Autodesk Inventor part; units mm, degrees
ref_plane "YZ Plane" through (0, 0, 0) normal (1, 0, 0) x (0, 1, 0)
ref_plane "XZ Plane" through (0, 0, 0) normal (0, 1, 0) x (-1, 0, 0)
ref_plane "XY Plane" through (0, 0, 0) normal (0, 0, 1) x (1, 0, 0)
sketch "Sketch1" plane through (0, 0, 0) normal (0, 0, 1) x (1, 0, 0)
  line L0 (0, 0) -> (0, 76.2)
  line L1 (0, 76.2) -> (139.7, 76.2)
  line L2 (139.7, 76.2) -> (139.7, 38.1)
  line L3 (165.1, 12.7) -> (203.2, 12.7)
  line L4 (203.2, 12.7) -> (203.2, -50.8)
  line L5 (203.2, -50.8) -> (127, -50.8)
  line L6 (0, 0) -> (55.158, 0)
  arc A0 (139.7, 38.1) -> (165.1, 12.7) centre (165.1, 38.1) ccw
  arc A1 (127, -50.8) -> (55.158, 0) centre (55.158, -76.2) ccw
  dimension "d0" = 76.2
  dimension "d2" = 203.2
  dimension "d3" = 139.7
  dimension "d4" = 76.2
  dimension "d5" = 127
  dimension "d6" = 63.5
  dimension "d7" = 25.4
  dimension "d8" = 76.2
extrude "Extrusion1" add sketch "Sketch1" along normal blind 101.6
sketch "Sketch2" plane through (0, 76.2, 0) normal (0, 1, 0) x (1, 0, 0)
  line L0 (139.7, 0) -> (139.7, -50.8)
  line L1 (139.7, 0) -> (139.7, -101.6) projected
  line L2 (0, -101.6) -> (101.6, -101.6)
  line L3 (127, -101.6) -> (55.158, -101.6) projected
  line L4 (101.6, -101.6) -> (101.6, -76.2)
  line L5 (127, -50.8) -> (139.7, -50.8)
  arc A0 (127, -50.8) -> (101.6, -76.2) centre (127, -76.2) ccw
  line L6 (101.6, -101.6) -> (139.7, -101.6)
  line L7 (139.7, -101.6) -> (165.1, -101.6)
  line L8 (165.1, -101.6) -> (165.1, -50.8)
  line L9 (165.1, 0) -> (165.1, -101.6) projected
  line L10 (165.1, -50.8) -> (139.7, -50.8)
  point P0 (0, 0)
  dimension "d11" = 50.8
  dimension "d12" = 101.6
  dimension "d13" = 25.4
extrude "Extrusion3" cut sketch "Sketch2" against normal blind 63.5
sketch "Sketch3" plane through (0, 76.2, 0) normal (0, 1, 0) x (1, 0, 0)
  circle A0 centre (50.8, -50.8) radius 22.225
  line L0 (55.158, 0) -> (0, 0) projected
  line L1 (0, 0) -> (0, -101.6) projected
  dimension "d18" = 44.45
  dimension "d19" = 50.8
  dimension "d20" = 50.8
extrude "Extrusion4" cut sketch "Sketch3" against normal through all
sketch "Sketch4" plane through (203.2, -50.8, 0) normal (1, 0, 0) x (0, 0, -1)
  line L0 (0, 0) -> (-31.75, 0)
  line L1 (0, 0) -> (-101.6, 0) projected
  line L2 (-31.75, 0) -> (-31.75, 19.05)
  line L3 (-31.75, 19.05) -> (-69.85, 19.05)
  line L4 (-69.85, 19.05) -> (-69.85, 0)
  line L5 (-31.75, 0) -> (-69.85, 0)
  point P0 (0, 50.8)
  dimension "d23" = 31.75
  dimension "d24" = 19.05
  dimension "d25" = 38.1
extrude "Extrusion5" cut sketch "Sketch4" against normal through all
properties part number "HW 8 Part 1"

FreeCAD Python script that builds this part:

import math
import FreeCAD as App
import Part
import Sketcher
Q = App.Units.Quantity


def add_polygon(sketch, points):
    """Adds a closed chain of lines whose ends are joined by coincident constraints."""
    first, n = sketch.GeometryCount, len(points)
    for a, b in zip(points, points[1:] + points[:1]):
        sketch.addGeometry(Part.LineSegment(App.Vector(*a, 0), App.Vector(*b, 0)), False)
    for i in range(n):
        sketch.addConstraint(Sketcher.Constraint("Coincident", first + i, 2, first + (i + 1) % n, 1))

doc = App.newDocument("Part")
body = doc.addObject("PartDesign::Body", "Body")

# Sketch on XY plane
sketch1 = doc.addObject("Sketcher::SketchObject", "Sketch")
body.addObject(sketch1)
sketch1.AttachmentSupport = (doc.XY_Plane, [""])
sketch1.MapMode = "FlatFace"
sketch1.addGeometry(Part.LineSegment(App.Vector(0, 76, 0), App.Vector(0, 0, 0)), False)
sketch1.addGeometry(Part.LineSegment(App.Vector(0, 0, 0), App.Vector(55, 0, 0)), False)
sketch1.addGeometry(Part.ArcOfCircle(Part.Circle(App.Vector(55, -76, 0), App.Vector(0, 0, 1), 76), math.radians(19), math.radians(90)), False)
sketch1.addGeometry(Part.LineSegment(App.Vector(127, -51, 0), App.Vector(203, -51, 0)), False)
sketch1.addGeometry(Part.LineSegment(App.Vector(203, -51, 0), App.Vector(203, 13, 0)), False)
sketch1.addGeometry(Part.LineSegment(App.Vector(203, 13, 0), App.Vector(165, 13, 0)), False)
sketch1.addGeometry(Part.ArcOfCircle(Part.Circle(App.Vector(165, 38, 0), App.Vector(0, 0, 1), 25), math.radians(180), math.radians(270)), False)
sketch1.addGeometry(Part.LineSegment(App.Vector(140, 38, 0), App.Vector(140, 76, 0)), False)
sketch1.addGeometry(Part.LineSegment(App.Vector(140, 76, 0), App.Vector(0, 76, 0)), False)
sketch1.addConstraint(Sketcher.Constraint("Coincident", 0, 2, 1, 1))
sketch1.addConstraint(Sketcher.Constraint("Tangent", 1, 2, 2, 2))
sketch1.addConstraint(Sketcher.Constraint("Coincident", 2, 1, 3, 1))
sketch1.addConstraint(Sketcher.Constraint("Coincident", 3, 2, 4, 1))
sketch1.addConstraint(Sketcher.Constraint("Coincident", 4, 2, 5, 1))
sketch1.addConstraint(Sketcher.Constraint("Tangent", 5, 2, 6, 2))
sketch1.addConstraint(Sketcher.Constraint("Tangent", 6, 1, 7, 1))
sketch1.addConstraint(Sketcher.Constraint("Coincident", 7, 2, 8, 1))
sketch1.addConstraint(Sketcher.Constraint("Coincident", 8, 2, 0, 1))
sketch1.addConstraint(Sketcher.Constraint("Vertical", 0))
sketch1.addConstraint(Sketcher.Constraint("Horizontal", 1))
sketch1.addConstraint(Sketcher.Constraint("Horizontal", 3))
sketch1.addConstraint(Sketcher.Constraint("Vertical", 4))
sketch1.addConstraint(Sketcher.Constraint("Horizontal", 5))
sketch1.addConstraint(Sketcher.Constraint("Vertical", 7))
sketch1.addConstraint(Sketcher.Constraint("Horizontal", 8))
sketch1.addConstraint(Sketcher.Constraint("Coincident", 0, 2, -1, 1))
sketch1.addConstraint(Sketcher.Constraint("Equal", 3, 0))
sketch1.addConstraint(Sketcher.Constraint("Equal", 5, 7))
sketch1.addConstraint(Sketcher.Constraint("Radius", 2, Q("3 in")))
sketch1.addConstraint(Sketcher.Constraint("Radius", 6, Q("1 in")))
sketch1.addConstraint(Sketcher.Constraint("DistanceX", 3, 1, 3, 2, Q("3 in")))
sketch1.addConstraint(Sketcher.Constraint("DistanceX", 8, 2, 8, 1, Q("5.5 in")))
sketch1.addConstraint(Sketcher.Constraint("DistanceY", 4, 1, 4, 2, Q("2.5 in")))
sketch1.addConstraint(Sketcher.Constraint("DistanceX", -1, 1, 2, 1, Q("5 in")))
pad1 = doc.addObject("PartDesign::Pad", "Pad")
body.addObject(pad1)
pad1.Profile = sketch1
pad1.Length = Q("4 in")

# Sketch on XZ plane
sketch2 = doc.addObject("Sketcher::SketchObject", "Sketch001")
body.addObject(sketch2)
sketch2.AttachmentSupport = (doc.XZ_Plane, [""])
sketch2.MapMode = "FlatFace"
sketch2.AttachmentOffset = App.Placement(App.Vector(0, 0, -3 * 25.4), App.Rotation())
sketch2.addGeometry(Part.LineSegment(App.Vector(165, 51, 0), App.Vector(127, 51, 0)), False)
sketch2.addGeometry(Part.ArcOfCircle(Part.Circle(App.Vector(127, 76, 0), App.Vector(0, 0, 1), 25), math.radians(180), math.radians(270)), False)
sketch2.addGeometry(Part.LineSegment(App.Vector(102, 76, 0), App.Vector(102, 102, 0)), False)
sketch2.addGeometry(Part.LineSegment(App.Vector(102, 102, 0), App.Vector(165, 102, 0)), False)
sketch2.addGeometry(Part.LineSegment(App.Vector(165, 102, 0), App.Vector(165, 51, 0)), False)
sketch2.addConstraint(Sketcher.Constraint("Tangent", 0, 2, 1, 2))
sketch2.addConstraint(Sketcher.Constraint("Tangent", 1, 1, 2, 1))
sketch2.addConstraint(Sketcher.Constraint("Coincident", 2, 2, 3, 1))
sketch2.addConstraint(Sketcher.Constraint("Coincident", 3, 2, 4, 1))
sketch2.addConstraint(Sketcher.Constraint("Coincident", 4, 2, 0, 1))
sketch2.addConstraint(Sketcher.Constraint("Horizontal", 0))
sketch2.addConstraint(Sketcher.Constraint("Vertical", 2))
sketch2.addConstraint(Sketcher.Constraint("Horizontal", 3))
sketch2.addConstraint(Sketcher.Constraint("Vertical", 4))
sketch2.addConstraint(Sketcher.Constraint("Radius", 1, Q("1 in")))
sketch2.addConstraint(Sketcher.Constraint("DistanceY", 2, 1, 2, 2, Q("1 in")))
sketch2.addConstraint(Sketcher.Constraint("DistanceY", -1, 1, 0, 2, Q("2 in")))
sketch2.addConstraint(Sketcher.Constraint("DistanceX", -1, 1, 1, 1, Q("4 in")))
sketch2.addConstraint(Sketcher.Constraint("DistanceX", 0, 2, 0, 1, Q("1.5 in")))
pocket1 = doc.addObject("PartDesign::Pocket", "Pocket")
body.addObject(pocket1)
pocket1.Profile = sketch2
pocket1.Length = Q("2.5 in")
pocket1.Reversed = True

# Sketch on XZ plane
sketch3 = doc.addObject("Sketcher::SketchObject", "Sketch002")
body.addObject(sketch3)
sketch3.AttachmentSupport = (doc.XZ_Plane, [""])
sketch3.MapMode = "FlatFace"
sketch3.AttachmentOffset = App.Placement(App.Vector(0, 0, -3 * 25.4), App.Rotation())
sketch3.addGeometry(Part.Circle(App.Vector(51, 51, 0), App.Vector(0, 0, 1), 22), False)
sketch3.addConstraint(Sketcher.Constraint("Diameter", 0, Q("1.75 in")))
sketch3.addConstraint(Sketcher.Constraint("DistanceX", -1, 1, 0, 3, Q("2 in")))
sketch3.addConstraint(Sketcher.Constraint("DistanceY", -1, 1, 0, 3, Q("2 in")))
pocket2 = doc.addObject("PartDesign::Pocket", "Pocket001")
body.addObject(pocket2)
pocket2.Profile = sketch3
pocket2.Type = "ThroughAll"
pocket2.Reversed = True

# Sketch on YZ plane
sketch4 = doc.addObject("Sketcher::SketchObject", "Sketch003")
body.addObject(sketch4)
sketch4.AttachmentSupport = (doc.YZ_Plane, [""])
sketch4.MapMode = "FlatFace"
sketch4.AttachmentOffset = App.Placement(App.Vector(0, 0, 8 * 25.4), App.Rotation())
add_polygon(sketch4, [(-51, 70), (-51, 32), (-32, 32), (-32, 70)])  # lines 0-3
sketch4.addConstraint(Sketcher.Constraint("Vertical", 0))
sketch4.addConstraint(Sketcher.Constraint("Horizontal", 1))
sketch4.addConstraint(Sketcher.Constraint("Vertical", 2))
sketch4.addConstraint(Sketcher.Constraint("Horizontal", 3))
sketch4.addConstraint(Sketcher.Constraint("DistanceY", 0, 2, 0, 1, Q("1.5 in")))
sketch4.addConstraint(Sketcher.Constraint("DistanceX", 1, 1, 1, 2, Q("0.75 in")))
sketch4.addConstraint(Sketcher.Constraint("DistanceY", -1, 1, 0, 2, Q("1.25 in")))
sketch4.addConstraint(Sketcher.Constraint("DistanceX", 1, 2, -1, 1, Q("1.25 in")))
pocket3 = doc.addObject("PartDesign::Pocket", "Pocket002")
body.addObject(pocket3)
pocket3.Profile = sketch4
pocket3.Type = "ThroughAll"

doc.recompute()
